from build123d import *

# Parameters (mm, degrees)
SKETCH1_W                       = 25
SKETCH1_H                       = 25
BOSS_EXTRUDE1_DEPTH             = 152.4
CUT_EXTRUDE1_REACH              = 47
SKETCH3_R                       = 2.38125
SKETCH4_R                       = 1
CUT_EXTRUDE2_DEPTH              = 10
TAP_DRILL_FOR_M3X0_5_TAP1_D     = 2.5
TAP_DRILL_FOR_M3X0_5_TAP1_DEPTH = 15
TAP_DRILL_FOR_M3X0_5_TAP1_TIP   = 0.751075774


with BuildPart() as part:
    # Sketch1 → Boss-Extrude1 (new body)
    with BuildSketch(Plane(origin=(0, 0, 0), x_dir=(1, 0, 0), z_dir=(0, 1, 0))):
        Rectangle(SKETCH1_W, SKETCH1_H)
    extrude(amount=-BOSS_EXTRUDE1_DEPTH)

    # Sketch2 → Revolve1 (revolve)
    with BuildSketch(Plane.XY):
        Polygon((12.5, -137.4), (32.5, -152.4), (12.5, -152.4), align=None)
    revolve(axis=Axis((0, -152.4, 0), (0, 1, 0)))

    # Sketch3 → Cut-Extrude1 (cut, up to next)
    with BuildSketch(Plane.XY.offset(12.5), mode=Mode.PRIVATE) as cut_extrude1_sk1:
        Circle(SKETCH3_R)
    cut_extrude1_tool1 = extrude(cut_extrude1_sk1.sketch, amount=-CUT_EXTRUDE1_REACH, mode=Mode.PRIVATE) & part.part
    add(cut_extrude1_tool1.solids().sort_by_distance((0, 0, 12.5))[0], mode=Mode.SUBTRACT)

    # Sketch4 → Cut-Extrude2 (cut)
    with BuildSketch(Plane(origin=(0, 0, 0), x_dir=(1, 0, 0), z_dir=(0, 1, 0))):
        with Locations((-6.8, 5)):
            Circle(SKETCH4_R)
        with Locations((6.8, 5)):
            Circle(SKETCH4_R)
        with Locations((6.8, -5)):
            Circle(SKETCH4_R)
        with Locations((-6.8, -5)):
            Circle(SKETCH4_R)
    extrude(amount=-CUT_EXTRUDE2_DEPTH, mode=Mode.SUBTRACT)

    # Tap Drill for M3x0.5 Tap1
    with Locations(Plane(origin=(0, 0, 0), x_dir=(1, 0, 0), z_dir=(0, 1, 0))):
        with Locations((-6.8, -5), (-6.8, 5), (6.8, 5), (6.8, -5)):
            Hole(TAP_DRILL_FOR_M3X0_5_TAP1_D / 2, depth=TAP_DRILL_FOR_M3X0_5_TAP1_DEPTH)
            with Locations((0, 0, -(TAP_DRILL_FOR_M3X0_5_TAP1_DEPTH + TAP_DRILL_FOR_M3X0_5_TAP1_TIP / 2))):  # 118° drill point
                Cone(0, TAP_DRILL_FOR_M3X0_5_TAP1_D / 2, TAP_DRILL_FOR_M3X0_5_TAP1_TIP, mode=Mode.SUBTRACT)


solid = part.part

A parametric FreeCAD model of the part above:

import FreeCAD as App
import Part
import Sketcher
from FreeCAD import Vector

doc = App.newDocument("Part")
body = doc.addObject("PartDesign::Body", "Body")

sketch1 = body.newObject("Sketcher::SketchObject", "Sketch")
sketch1.AttachmentSupport = (doc.getObject("XZ_Plane"), [""])
sketch1.MapMode = "FlatFace"
sketch1.addGeometry(Part.LineSegment(Vector(-12, -12, 0), Vector(-12, 12, 0)), False)
sketch1.addGeometry(Part.LineSegment(Vector(-12, 12, 0), Vector(12, 12, 0)), False)
sketch1.addGeometry(Part.LineSegment(Vector(12, 12, 0), Vector(12, -12, 0)), False)
sketch1.addGeometry(Part.LineSegment(Vector(12, -12, 0), Vector(-12, -12, 0)), False)
sketch1.addConstraint(Sketcher.Constraint("Coincident", 0, 2, 1, 1))
sketch1.addConstraint(Sketcher.Constraint("Coincident", 1, 2, 2, 1))
sketch1.addConstraint(Sketcher.Constraint("Coincident", 2, 2, 3, 1))
sketch1.addConstraint(Sketcher.Constraint("Coincident", 3, 2, 0, 1))
sketch1.addConstraint(Sketcher.Constraint("Vertical", 0))
sketch1.addConstraint(Sketcher.Constraint("Horizontal", 1))
sketch1.addConstraint(Sketcher.Constraint("Vertical", 2))
sketch1.addConstraint(Sketcher.Constraint("Horizontal", 3))
sketch1.addConstraint(Sketcher.Constraint("Symmetric", 0, 2, 2, 2, -1, 1))
sketch1.addConstraint(Sketcher.Constraint("Equal", 3, 0))
sketch1.addConstraint(Sketcher.Constraint("DistanceX", 1, 1, 1, 2, 25.0))
pad1 = body.newObject("PartDesign::Pad", "Pad")
pad1.Profile = sketch1
pad1.Length = 152.4

sketch2 = body.newObject("Sketcher::SketchObject", "Sketch001")
sketch2.AttachmentSupport = (doc.getObject("XY_Plane"), [""])
sketch2.MapMode = "FlatFace"
sketch2.addGeometry(Part.LineSegment(Vector(32, -152, 0), Vector(12, -137, 0)), False)
sketch2.addGeometry(Part.LineSegment(Vector(12, -137, 0), Vector(12, -152, 0)), False)
sketch2.addGeometry(Part.LineSegment(Vector(12, -152, 0), Vector(32, -152, 0)), False)
sketch2.addConstraint(Sketcher.Constraint("Coincident", 0, 2, 1, 1))
sketch2.addConstraint(Sketcher.Constraint("Coincident", 1, 2, 2, 1))
sketch2.addConstraint(Sketcher.Constraint("Coincident", 2, 2, 0, 1))
sketch2.addConstraint(Sketcher.Constraint("Vertical", 1))
sketch2.addConstraint(Sketcher.Constraint("Horizontal", 2))
sketch2.addConstraint(Sketcher.Constraint("DistanceX", 2, 1, 2, 2, 20.0))
sketch2.addConstraint(Sketcher.Constraint("DistanceY", 1, 2, 1, 1, 15.0))
sketch2.addConstraint(Sketcher.Constraint("DistanceX", -1, 1, 0, 2, 12.5))
sketch2.addConstraint(Sketcher.Constraint("DistanceY", 0, 2, -1, 1, 137.4))
revolution = body.newObject("PartDesign::Revolution", "Revolution")
revolution.Profile = sketch2
revolution.ReferenceAxis = (sketch2, ["V_Axis"])
revolution.Angle = 360

sketch3 = body.newObject("Sketcher::SketchObject", "Sketch002")
sketch3.AttachmentSupport = (doc.getObject("XY_Plane"), [""])
sketch3.MapMode = "FlatFace"
sketch3.AttachmentOffset = App.Placement(Vector(0, 0, 12.5), App.Rotation())
sketch3.addGeometry(Part.Circle(Vector(0, 0, 0), Vector(0, 0, 1), 2.4), False)
sketch3.addConstraint(Sketcher.Constraint("Coincident", 0, 3, -1, 1))
sketch3.addConstraint(Sketcher.Constraint("Diameter", 0, 4.7625))
pocket1 = body.newObject("PartDesign::Pocket", "Pocket")
pocket1.Profile = sketch3
pocket1.Type = "UpToFirst"

sketch4 = body.newObject("Sketcher::SketchObject", "Sketch003")
sketch4.AttachmentSupport = (doc.getObject("XZ_Plane"), [""])
sketch4.MapMode = "FlatFace"
sketch4.addGeometry(Part.Circle(Vector(-6.8, -5, 0), Vector(0, 0, 1), 1), False)
sketch4.addGeometry(Part.Circle(Vector(6.8, -5, 0), Vector(0, 0, 1), 1), False)
sketch4.addGeometry(Part.Circle(Vector(6.8, 5, 0), Vector(0, 0, 1), 1), False)
sketch4.addGeometry(Part.Circle(Vector(-6.8, 5, 0), Vector(0, 0, 1), 1), False)
sketch4.addConstraint(Sketcher.Constraint("Equal", 0, 1))
sketch4.addConstraint(Sketcher.Constraint("Equal", 1, 2))
sketch4.addConstraint(Sketcher.Constraint("Equal", 2, 3))
sketch4.addConstraint(Sketcher.Constraint("Symmetric", 0, 3, 2, 3, -1, 1))
sketch4.addConstraint(Sketcher.Constraint("Symmetric", 1, 3, 3, 3, -1, 1))
sketch4.addConstraint(Sketcher.Constraint("Symmetric", 0, 3, 1, 3, -2))
sketch4.addConstraint(Sketcher.Constraint("Diameter", 0, 2.0))
sketch4.addConstraint(Sketcher.Constraint("DistanceY", 0, 3, -1, 1, 5.0))
sketch4.addConstraint(Sketcher.Constraint("DistanceX", 0, 3, -1, 1, 6.8))
pocket2 = body.newObject("PartDesign::Pocket", "Pocket001")
pocket2.Profile = sketch4
pocket2.Length = 10
pocket2.Reversed = True

sketch5 = body.newObject("Sketcher::SketchObject", "Sketch004")
sketch5.AttachmentSupport = (doc.getObject("XZ_Plane"), [""])
sketch5.MapMode = "FlatFace"
sketch5.addGeometry(Part.Circle(Vector(-6.8, 5, 0), Vector(0, 0, 1), 1.2), False)
sketch5.addGeometry(Part.Circle(Vector(-6.8, -5, 0), Vector(0, 0, 1), 1.2), False)
sketch5.addGeometry(Part.Circle(Vector(6.8, -5, 0), Vector(0, 0, 1), 1.2), False)
sketch5.addGeometry(Part.Circle(Vector(6.8, 5, 0), Vector(0, 0, 1), 1.2), False)
sketch5.addConstraint(Sketcher.Constraint("Equal", 0, 1))
sketch5.addConstraint(Sketcher.Constraint("Equal", 1, 2))
sketch5.addConstraint(Sketcher.Constraint("Equal", 2, 3))
sketch5.addConstraint(Sketcher.Constraint("Symmetric", 0, 3, 2, 3, -1, 1))
sketch5.addConstraint(Sketcher.Constraint("Symmetric", 1, 3, 3, 3, -1, 1))
sketch5.addConstraint(Sketcher.Constraint("Symmetric", 1, 3, 2, 3, -2))
sketch5.addConstraint(Sketcher.Constraint("Diameter", 0, 2.5))
sketch5.addConstraint(Sketcher.Constraint("DistanceY", -1, 1, 0, 3, 5.0))
sketch5.addConstraint(Sketcher.Constraint("DistanceX", 0, 3, -1, 1, 6.8))
doc.recompute()
hole = body.newObject("PartDesign::Hole", "Hole")
hole.Profile = sketch5
hole.ThreadType = "None"
hole.Diameter = 2.5
hole.DepthType = "Dimension"
hole.Depth = 15
hole.DrillPoint = "Angled"
hole.DrillPointAngle = 118
hole.Reversed = True

doc.recompute()
